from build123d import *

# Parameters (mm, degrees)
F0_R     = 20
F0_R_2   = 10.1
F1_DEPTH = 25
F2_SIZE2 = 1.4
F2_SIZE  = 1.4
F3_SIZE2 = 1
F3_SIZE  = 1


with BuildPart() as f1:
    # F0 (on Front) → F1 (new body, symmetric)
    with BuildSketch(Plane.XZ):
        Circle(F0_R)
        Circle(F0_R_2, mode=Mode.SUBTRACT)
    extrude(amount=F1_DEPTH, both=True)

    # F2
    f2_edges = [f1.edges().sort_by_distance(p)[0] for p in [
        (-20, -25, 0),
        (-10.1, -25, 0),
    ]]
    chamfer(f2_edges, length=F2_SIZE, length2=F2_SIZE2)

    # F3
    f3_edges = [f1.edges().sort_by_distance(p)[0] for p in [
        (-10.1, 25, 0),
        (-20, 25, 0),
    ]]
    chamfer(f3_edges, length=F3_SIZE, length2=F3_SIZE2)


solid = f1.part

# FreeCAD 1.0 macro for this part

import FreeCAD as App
import Part
import Sketcher
from FreeCAD import Vector


def edges_at(feature, points):
    """Names of the edges that pass closest to the given points."""
    edges = feature.Shape.Edges
    near = lambda p: min(range(len(edges)), key=lambda i: edges[i].distToShape(Part.Vertex(*p))[0])
    return sorted({f"Edge{near(p) + 1}" for p in points})

doc = App.newDocument("Part")
body = doc.addObject("PartDesign::Body", "Body")

sketch1 = body.newObject("Sketcher::SketchObject", "Sketch")
sketch1.AttachmentSupport = (doc.getObject("XZ_Plane"), [""])
sketch1.MapMode = "FlatFace"
sketch1.addGeometry(Part.Circle(Vector(0, 0, 0), Vector(0, 0, 1), 20), False)
sketch1.addGeometry(Part.Circle(Vector(0, 0, 0), Vector(0, 0, 1), 10.1), False)
sketch1.addConstraint(Sketcher.Constraint("Coincident", 0, 3, -1, 1))
sketch1.addConstraint(Sketcher.Constraint("Coincident", 1, 3, -1, 1))
sketch1.addConstraint(Sketcher.Constraint("Diameter", 0, 40.0))
sketch1.addConstraint(Sketcher.Constraint("Diameter", 1, 20.2))
pad1 = body.newObject("PartDesign::Pad", "Pad")
pad1.Profile = sketch1
pad1.Length = 50
pad1.Midplane = True
doc.recompute()

chamfer = body.newObject("PartDesign::Chamfer", "Chamfer")
chamfer.Base = (pad1, edges_at(pad1, [(-20, -25, 0), (-10.1, -25, 0)]))
chamfer.ChamferType = "Two distances"
chamfer.Size = 1.4
chamfer.Size2 = 1.4
doc.recompute()

chamfer2 = body.newObject("PartDesign::Chamfer", "Chamfer001")
chamfer2.Base = (chamfer, edges_at(chamfer, [(-10.1, 25, 0), (-20, 25, 0)]))
chamfer2.ChamferType = "Two distances"
chamfer2.Size = 1
chamfer2.Size2 = 1

doc.recompute()
